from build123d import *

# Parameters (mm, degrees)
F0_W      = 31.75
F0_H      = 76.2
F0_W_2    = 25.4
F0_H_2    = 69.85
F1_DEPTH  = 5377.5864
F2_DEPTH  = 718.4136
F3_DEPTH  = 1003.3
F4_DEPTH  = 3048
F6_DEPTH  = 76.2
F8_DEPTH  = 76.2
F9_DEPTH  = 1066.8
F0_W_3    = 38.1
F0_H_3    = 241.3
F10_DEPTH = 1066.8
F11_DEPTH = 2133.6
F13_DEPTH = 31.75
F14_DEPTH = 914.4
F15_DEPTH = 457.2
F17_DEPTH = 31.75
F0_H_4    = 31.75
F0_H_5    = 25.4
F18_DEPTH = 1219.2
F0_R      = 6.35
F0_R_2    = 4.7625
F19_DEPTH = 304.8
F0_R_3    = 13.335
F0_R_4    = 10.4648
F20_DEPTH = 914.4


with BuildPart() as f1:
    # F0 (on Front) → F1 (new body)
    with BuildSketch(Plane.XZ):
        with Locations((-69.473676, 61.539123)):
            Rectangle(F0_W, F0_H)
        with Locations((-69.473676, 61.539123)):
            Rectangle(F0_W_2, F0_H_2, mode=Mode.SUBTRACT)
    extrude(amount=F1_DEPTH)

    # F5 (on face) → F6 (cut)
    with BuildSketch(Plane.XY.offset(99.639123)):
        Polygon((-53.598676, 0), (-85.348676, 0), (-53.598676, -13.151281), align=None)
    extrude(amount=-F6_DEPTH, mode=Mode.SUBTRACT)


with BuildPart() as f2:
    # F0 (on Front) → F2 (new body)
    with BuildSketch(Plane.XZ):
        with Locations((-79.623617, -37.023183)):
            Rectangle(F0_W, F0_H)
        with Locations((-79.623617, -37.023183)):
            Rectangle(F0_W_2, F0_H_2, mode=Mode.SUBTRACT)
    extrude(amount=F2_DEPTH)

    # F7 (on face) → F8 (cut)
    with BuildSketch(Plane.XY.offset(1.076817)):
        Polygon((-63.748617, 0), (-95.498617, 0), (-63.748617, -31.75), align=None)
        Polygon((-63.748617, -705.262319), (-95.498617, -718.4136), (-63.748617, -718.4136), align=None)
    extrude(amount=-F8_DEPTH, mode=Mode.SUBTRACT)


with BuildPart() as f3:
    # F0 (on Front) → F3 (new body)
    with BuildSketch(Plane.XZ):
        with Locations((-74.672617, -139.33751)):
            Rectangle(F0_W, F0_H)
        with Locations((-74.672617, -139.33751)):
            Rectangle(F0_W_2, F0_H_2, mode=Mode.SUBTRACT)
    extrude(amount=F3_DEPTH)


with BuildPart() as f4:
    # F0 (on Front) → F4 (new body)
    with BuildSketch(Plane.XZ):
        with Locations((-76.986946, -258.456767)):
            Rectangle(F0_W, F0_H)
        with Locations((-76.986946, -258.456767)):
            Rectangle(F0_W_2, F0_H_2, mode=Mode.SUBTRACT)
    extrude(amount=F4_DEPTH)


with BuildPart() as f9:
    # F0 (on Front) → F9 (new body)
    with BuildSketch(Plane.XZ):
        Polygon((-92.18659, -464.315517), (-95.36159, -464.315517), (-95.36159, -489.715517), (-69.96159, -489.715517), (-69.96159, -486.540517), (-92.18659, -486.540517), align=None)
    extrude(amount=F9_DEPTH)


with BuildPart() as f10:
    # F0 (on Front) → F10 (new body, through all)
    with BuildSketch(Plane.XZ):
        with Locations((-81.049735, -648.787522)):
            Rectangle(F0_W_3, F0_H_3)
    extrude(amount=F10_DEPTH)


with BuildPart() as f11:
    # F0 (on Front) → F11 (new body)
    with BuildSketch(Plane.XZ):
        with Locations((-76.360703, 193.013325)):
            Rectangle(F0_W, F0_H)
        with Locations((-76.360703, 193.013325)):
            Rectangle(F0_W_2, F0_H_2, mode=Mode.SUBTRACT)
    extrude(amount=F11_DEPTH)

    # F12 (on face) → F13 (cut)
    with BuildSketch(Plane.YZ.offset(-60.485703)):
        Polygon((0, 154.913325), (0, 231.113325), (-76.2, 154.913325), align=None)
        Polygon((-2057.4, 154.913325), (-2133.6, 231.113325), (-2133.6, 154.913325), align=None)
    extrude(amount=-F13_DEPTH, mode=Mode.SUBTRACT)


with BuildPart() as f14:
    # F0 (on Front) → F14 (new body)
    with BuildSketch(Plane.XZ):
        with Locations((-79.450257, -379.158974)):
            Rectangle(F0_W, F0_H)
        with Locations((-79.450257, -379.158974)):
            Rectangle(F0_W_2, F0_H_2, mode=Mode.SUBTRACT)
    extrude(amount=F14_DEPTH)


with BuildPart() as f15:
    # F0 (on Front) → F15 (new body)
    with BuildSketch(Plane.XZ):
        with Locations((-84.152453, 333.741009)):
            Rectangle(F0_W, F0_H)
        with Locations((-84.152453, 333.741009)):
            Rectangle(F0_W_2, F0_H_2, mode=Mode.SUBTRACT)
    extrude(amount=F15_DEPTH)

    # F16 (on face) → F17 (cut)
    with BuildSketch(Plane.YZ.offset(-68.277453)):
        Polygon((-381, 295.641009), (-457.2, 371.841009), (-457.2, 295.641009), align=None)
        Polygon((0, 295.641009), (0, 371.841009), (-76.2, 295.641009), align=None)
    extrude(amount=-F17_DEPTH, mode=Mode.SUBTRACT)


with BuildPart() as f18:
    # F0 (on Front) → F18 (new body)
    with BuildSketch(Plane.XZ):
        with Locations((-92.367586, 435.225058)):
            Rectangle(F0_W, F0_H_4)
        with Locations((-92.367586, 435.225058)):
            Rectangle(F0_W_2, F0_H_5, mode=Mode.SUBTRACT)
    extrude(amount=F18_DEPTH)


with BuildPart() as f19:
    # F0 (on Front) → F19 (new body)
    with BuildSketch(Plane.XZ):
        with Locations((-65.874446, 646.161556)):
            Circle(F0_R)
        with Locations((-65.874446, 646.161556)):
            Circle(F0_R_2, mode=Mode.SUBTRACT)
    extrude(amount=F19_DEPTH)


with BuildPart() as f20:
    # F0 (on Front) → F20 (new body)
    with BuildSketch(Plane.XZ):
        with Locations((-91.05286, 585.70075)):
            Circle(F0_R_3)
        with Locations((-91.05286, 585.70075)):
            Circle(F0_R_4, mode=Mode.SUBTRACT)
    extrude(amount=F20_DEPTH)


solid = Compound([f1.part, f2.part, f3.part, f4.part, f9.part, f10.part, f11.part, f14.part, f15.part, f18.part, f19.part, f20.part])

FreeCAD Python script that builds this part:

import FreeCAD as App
import Part
import Sketcher
from FreeCAD import Vector
Q = App.Units.Quantity

doc = App.newDocument("Part")
body = doc.addObject("PartDesign::Body", "Body")

# Sketch on XZ plane
sketch1 = body.newObject("Sketcher::SketchObject", "Sketch")
sketch1.AttachmentSupport = (doc.getObject("XZ_Plane"), [""])
sketch1.MapMode = "FlatFace"
sketch1.addGeometry(Part.LineSegment(Vector(-85, 100, 0), Vector(-85, 23, 0)), False)
sketch1.addGeometry(Part.LineSegment(Vector(-85, 23, 0), Vector(-54, 23, 0)), False)
sketch1.addGeometry(Part.LineSegment(Vector(-54, 23, 0), Vector(-54, 100, 0)), False)
sketch1.addGeometry(Part.LineSegment(Vector(-54, 100, 0), Vector(-85, 100, 0)), False)
sketch1.addGeometry(Part.LineSegment(Vector(-57, 27, 0), Vector(-82, 27, 0)), False)
sketch1.addGeometry(Part.LineSegment(Vector(-82, 27, 0), Vector(-82, 96, 0)), False)
sketch1.addGeometry(Part.LineSegment(Vector(-82, 96, 0), Vector(-57, 96, 0)), False)
sketch1.addGeometry(Part.LineSegment(Vector(-57, 96, 0), Vector(-57, 27, 0)), False)
sketch1.addConstraint(Sketcher.Constraint("Coincident", 0, 2, 1, 1))
sketch1.addConstraint(Sketcher.Constraint("Coincident", 1, 2, 2, 1))
sketch1.addConstraint(Sketcher.Constraint("Coincident", 2, 2, 3, 1))
sketch1.addConstraint(Sketcher.Constraint("Coincident", 3, 2, 0, 1))
sketch1.addConstraint(Sketcher.Constraint("Coincident", 4, 2, 5, 1))
sketch1.addConstraint(Sketcher.Constraint("Coincident", 5, 2, 6, 1))
sketch1.addConstraint(Sketcher.Constraint("Coincident", 6, 2, 7, 1))
sketch1.addConstraint(Sketcher.Constraint("Coincident", 7, 2, 4, 1))
sketch1.addConstraint(Sketcher.Constraint("Vertical", 0))
sketch1.addConstraint(Sketcher.Constraint("Horizontal", 1))
sketch1.addConstraint(Sketcher.Constraint("Vertical", 2))
sketch1.addConstraint(Sketcher.Constraint("Horizontal", 3))
sketch1.addConstraint(Sketcher.Constraint("Horizontal", 4))
sketch1.addConstraint(Sketcher.Constraint("Vertical", 5))
sketch1.addConstraint(Sketcher.Constraint("Horizontal", 6))
sketch1.addConstraint(Sketcher.Constraint("Vertical", 7))
sketch1.addConstraint(Sketcher.Constraint("DistanceX", 4, 2, 4, 1, Q("1 in")))
sketch1.addConstraint(Sketcher.Constraint("DistanceY", 0, 2, 0, 1, Q("3 in")))
sketch1.addConstraint(Sketcher.Constraint("DistanceX", 1, 1, 1, 2, Q("1.25 in")))
sketch1.addConstraint(Sketcher.Constraint("DistanceY", 5, 1, 5, 2, Q("2.75 in")))
sketch1.addConstraint(Sketcher.Constraint("DistanceX", 0, 2, 4, 2, Q("0.125 in")))
sketch1.addConstraint(Sketcher.Constraint("DistanceY", 0, 2, 4, 2, Q("0.125 in")))
sketch1.addConstraint(Sketcher.Constraint("DistanceY", -1, 1, 0, 2, Q("0.9228001 in")))
sketch1.addConstraint(Sketcher.Constraint("DistanceX", 0, 2, -1, 1, 85.348676))
pad1 = body.newObject("PartDesign::Pad", "Pad")
pad1.Profile = sketch1
pad1.Length = Q("211.716 in")

# Sketch on XY plane
sketch2 = body.newObject("Sketcher::SketchObject", "Sketch001")
sketch2.AttachmentSupport = (doc.getObject("XY_Plane"), [""])
sketch2.MapMode = "FlatFace"
sketch2.AttachmentOffset = App.Placement(Vector(0, 0, 3.9228001 * 25.4), App.Rotation())
sketch2.addGeometry(Part.LineSegment(Vector(-54, 0, 0), Vector(-85, 0, 0)), False)
sketch2.addGeometry(Part.LineSegment(Vector(-85, 0, 0), Vector(-54, -13, 0)), False)
sketch2.addGeometry(Part.LineSegment(Vector(-54, -13, 0), Vector(-54, 0, 0)), False)
sketch2.addConstraint(Sketcher.Constraint("Coincident", 0, 2, 1, 1))
sketch2.addConstraint(Sketcher.Constraint("Coincident", 1, 2, 2, 1))
sketch2.addConstraint(Sketcher.Constraint("Coincident", 2, 2, 0, 1))
sketch2.addConstraint(Sketcher.Constraint("Horizontal", 0))
sketch2.addConstraint(Sketcher.Constraint("Vertical", 2))
sketch2.addConstraint(Sketcher.Constraint("PointOnObject", 0, 2, -1))
sketch2.addConstraint(Sketcher.Constraint("DistanceX", 0, 2, 0, 1, Q("1.25 in")))
sketch2.addConstraint(Sketcher.Constraint("Angle", 1, Q("-22.500001 deg")))
sketch2.addConstraint(Sketcher.Constraint("DistanceX", 0, 2, -1, 1, 85.348676))
pocket1 = body.newObject("PartDesign::Pocket", "Pocket")
pocket1.Profile = sketch2
pocket1.Length = Q("3 in")
body2 = doc.addObject("PartDesign::Body", "Body001")

# Sketch on XZ plane
sketch3 = body2.newObject("Sketcher::SketchObject", "Sketch002")
sketch3.AttachmentSupport = (doc.getObject("XZ_Plane001"), [""])
sketch3.MapMode = "FlatFace"
sketch3.addGeometry(Part.LineSegment(Vector(-95, 1, 0), Vector(-95, -75, 0)), False)
sketch3.addGeometry(Part.LineSegment(Vector(-95, -75, 0), Vector(-64, -75, 0)), False)
sketch3.addGeometry(Part.LineSegment(Vector(-64, -75, 0), Vector(-64, 1, 0)), False)
sketch3.addGeometry(Part.LineSegment(Vector(-64, 1, 0), Vector(-95, 1, 0)), False)
sketch3.addGeometry(Part.LineSegment(Vector(-67, -72, 0), Vector(-92, -72, 0)), False)
sketch3.addGeometry(Part.LineSegment(Vector(-92, -72, 0), Vector(-92, -2, 0)), False)
sketch3.addGeometry(Part.LineSegment(Vector(-92, -2, 0), Vector(-67, -2, 0)), False)
sketch3.addGeometry(Part.LineSegment(Vector(-67, -2, 0), Vector(-67, -72, 0)), False)
sketch3.addConstraint(Sketcher.Constraint("Coincident", 0, 2, 1, 1))
sketch3.addConstraint(Sketcher.Constraint("Coincident", 1, 2, 2, 1))
sketch3.addConstraint(Sketcher.Constraint("Coincident", 2, 2, 3, 1))
sketch3.addConstraint(Sketcher.Constraint("Coincident", 3, 2, 0, 1))
sketch3.addConstraint(Sketcher.Constraint("Coincident", 4, 2, 5, 1))
sketch3.addConstraint(Sketcher.Constraint("Coincident", 5, 2, 6, 1))
sketch3.addConstraint(Sketcher.Constraint("Coincident", 6, 2, 7, 1))
sketch3.addConstraint(Sketcher.Constraint("Coincident", 7, 2, 4, 1))
sketch3.addConstraint(Sketcher.Constraint("Vertical", 0))
sketch3.addConstraint(Sketcher.Constraint("Horizontal", 1))
sketch3.addConstraint(Sketcher.Constraint("Vertical", 2))
sketch3.addConstraint(Sketcher.Constraint("Horizontal", 3))
sketch3.addConstraint(Sketcher.Constraint("Horizontal", 4))
sketch3.addConstraint(Sketcher.Constraint("Vertical", 5))
sketch3.addConstraint(Sketcher.Constraint("Horizontal", 6))
sketch3.addConstraint(Sketcher.Constraint("Vertical", 7))
sketch3.addConstraint(Sketcher.Constraint("DistanceX", 4, 2, 4, 1, Q("1 in")))
sketch3.addConstraint(Sketcher.Constraint("DistanceY", 0, 2, 0, 1, Q("3 in")))
sketch3.addConstraint(Sketcher.Constraint("DistanceX", 1, 1, 1, 2, Q("1.25 in")))
sketch3.addConstraint(Sketcher.Constraint("DistanceY", 5, 1, 5, 2, Q("2.75 in")))
sketch3.addConstraint(Sketcher.Constraint("DistanceX", 0, 2, 4, 2, Q("0.125 in")))
sketch3.addConstraint(Sketcher.Constraint("DistanceY", 0, 2, 4, 2, Q("0.125 in")))
sketch3.addConstraint(Sketcher.Constraint("DistanceX", 0, 2, -1, 1, 95.498617))
sketch3.addConstraint(Sketcher.Constraint("DistanceY", 0, 2, -1, 1, 75.123183))
pad2 = body2.newObject("PartDesign::Pad", "Pad001")
pad2.Profile = sketch3
pad2.Length = Q("28.284 in")

# Sketch on XY plane
sketch4 = body2.newObject("Sketcher::SketchObject", "Sketch003")
sketch4.AttachmentSupport = (doc.getObject("XY_Plane001"), [""])
sketch4.MapMode = "FlatFace"
sketch4.AttachmentOffset = App.Placement(Vector(0, 0, 1.076817), App.Rotation())
sketch4.addGeometry(Part.LineSegment(Vector(-64, 0, 0), Vector(-95, 0, 0)), False)
sketch4.addGeometry(Part.LineSegment(Vector(-95, 0, 0), Vector(-64, -32, 0)), False)
sketch4.addGeometry(Part.LineSegment(Vector(-64, -32, 0), Vector(-64, 0, 0)), False)
sketch4.addGeometry(Part.LineSegment(Vector(-64, -705, 0), Vector(-95, -718, 0)), False)
sketch4.addGeometry(Part.LineSegment(Vector(-95, -718, 0), Vector(-64, -718, 0)), False)
sketch4.addGeometry(Part.LineSegment(Vector(-64, -718, 0), Vector(-64, -705, 0)), False)
sketch4.addConstraint(Sketcher.Constraint("Coincident", 0, 2, 1, 1))
sketch4.addConstraint(Sketcher.Constraint("Coincident", 1, 2, 2, 1))
sketch4.addConstraint(Sketcher.Constraint("Coincident", 2, 2, 0, 1))
sketch4.addConstraint(Sketcher.Constraint("Coincident", 3, 2, 4, 1))
sketch4.addConstraint(Sketcher.Constraint("Coincident", 4, 2, 5, 1))
sketch4.addConstraint(Sketcher.Constraint("Coincident", 5, 2, 3, 1))
sketch4.addConstraint(Sketcher.Constraint("Horizontal", 0))
sketch4.addConstraint(Sketcher.Constraint("Vertical", 2))
sketch4.addConstraint(Sketcher.Constraint("Horizontal", 4))
sketch4.addConstraint(Sketcher.Constraint("Vertical", 5))
sketch4.addConstraint(Sketcher.Constraint("PointOnObject", 0, 2, -1))
sketch4.addConstraint(Sketcher.Constraint("Vertical", 0, 2, 3, 2))
sketch4.addConstraint(Sketcher.Constraint("Vertical", 2, 2, 4, 2))
sketch4.addConstraint(Sketcher.Constraint("Equal", 4, 2))
sketch4.addConstraint(Sketcher.Constraint("DistanceX", 0, 2, 0, 1, Q("1.25 in")))
sketch4.addConstraint(Sketcher.Constraint("Angle", 3, Q("-157.499999 deg")))
sketch4.addConstraint(Sketcher.Constraint("DistanceY", 3, 2, -1, 1, Q("28.284 in")))
sketch4.addConstraint(Sketcher.Constraint("DistanceX", 0, 2, -1, 1, 95.498617))
pocket2 = body2.newObject("PartDesign::Pocket", "Pocket001")
pocket2.Profile = sketch4
pocket2.Length = Q("3 in")
body3 = doc.addObject("PartDesign::Body", "Body002")

# Sketch on XZ plane
sketch5 = body3.newObject("Sketcher::SketchObject", "Sketch004")
sketch5.AttachmentSupport = (doc.getObject("XZ_Plane002"), [""])
sketch5.MapMode = "FlatFace"
sketch5.addGeometry(Part.LineSegment(Vector(-91, -101, 0), Vector(-91, -177, 0)), False)
sketch5.addGeometry(Part.LineSegment(Vector(-91, -177, 0), Vector(-59, -177, 0)), False)
sketch5.addGeometry(Part.LineSegment(Vector(-59, -177, 0), Vector(-59, -101, 0)), False)
sketch5.addGeometry(Part.LineSegment(Vector(-59, -101, 0), Vector(-91, -101, 0)), False)
sketch5.addGeometry(Part.LineSegment(Vector(-62, -174, 0), Vector(-87, -174, 0)), False)
sketch5.addGeometry(Part.LineSegment(Vector(-87, -174, 0), Vector(-87, -104, 0)), False)
sketch5.addGeometry(Part.LineSegment(Vector(-87, -104, 0), Vector(-62, -104, 0)), False)
sketch5.addGeometry(Part.LineSegment(Vector(-62, -104, 0), Vector(-62, -174, 0)), False)
sketch5.addConstraint(Sketcher.Constraint("Coincident", 0, 2, 1, 1))
sketch5.addConstraint(Sketcher.Constraint("Coincident", 1, 2, 2, 1))
sketch5.addConstraint(Sketcher.Constraint("Coincident", 2, 2, 3, 1))
sketch5.addConstraint(Sketcher.Constraint("Coincident", 3, 2, 0, 1))
sketch5.addConstraint(Sketcher.Constraint("Coincident", 4, 2, 5, 1))
sketch5.addConstraint(Sketcher.Constraint("Coincident", 5, 2, 6, 1))
sketch5.addConstraint(Sketcher.Constraint("Coincident", 6, 2, 7, 1))
sketch5.addConstraint(Sketcher.Constraint("Coincident", 7, 2, 4, 1))
sketch5.addConstraint(Sketcher.Constraint("Vertical", 0))
sketch5.addConstraint(Sketcher.Constraint("Horizontal", 1))
sketch5.addConstraint(Sketcher.Constraint("Vertical", 2))
sketch5.addConstraint(Sketcher.Constraint("Horizontal", 3))
sketch5.addConstraint(Sketcher.Constraint("Horizontal", 4))
sketch5.addConstraint(Sketcher.Constraint("Vertical", 5))
sketch5.addConstraint(Sketcher.Constraint("Horizontal", 6))
sketch5.addConstraint(Sketcher.Constraint("Vertical", 7))
sketch5.addConstraint(Sketcher.Constraint("DistanceX", 4, 2, 4, 1, Q("1 in")))
sketch5.addConstraint(Sketcher.Constraint("DistanceY", 0, 2, 0, 1, Q("3 in")))
sketch5.addConstraint(Sketcher.Constraint("DistanceX", 1, 1, 1, 2, Q("1.25 in")))
sketch5.addConstraint(Sketcher.Constraint("DistanceY", 5, 1, 5, 2, Q("2.75 in")))
sketch5.addConstraint(Sketcher.Constraint("DistanceX", 0, 2, 4, 2, Q("0.125 in")))
sketch5.addConstraint(Sketcher.Constraint("DistanceY", 0, 2, 4, 2, Q("0.125 in")))
sketch5.addConstraint(Sketcher.Constraint("DistanceY", 0, 2, -1, 1, 177.43751))
sketch5.addConstraint(Sketcher.Constraint("DistanceX", 0, 2, -1, 1, 90.547617))
pad3 = body3.newObject("PartDesign::Pad", "Pad002")
pad3.Profile = sketch5
pad3.Length = Q("39.5 in")
body4 = doc.addObject("PartDesign::Body", "Body003")

# Sketch on XZ plane
sketch6 = body4.newObject("Sketcher::SketchObject", "Sketch005")
sketch6.AttachmentSupport = (doc.getObject("XZ_Plane003"), [""])
sketch6.MapMode = "FlatFace"
sketch6.addGeometry(Part.LineSegment(Vector(-93, -220, 0), Vector(-93, -297, 0)), False)
sketch6.addGeometry(Part.LineSegment(Vector(-93, -297, 0), Vector(-61, -297, 0)), False)
sketch6.addGeometry(Part.LineSegment(Vector(-61, -297, 0), Vector(-61, -220, 0)), False)
sketch6.addGeometry(Part.LineSegment(Vector(-61, -220, 0), Vector(-93, -220, 0)), False)
sketch6.addGeometry(Part.LineSegment(Vector(-64, -293, 0), Vector(-90, -293, 0)), False)
sketch6.addGeometry(Part.LineSegment(Vector(-90, -293, 0), Vector(-90, -224, 0)), False)
sketch6.addGeometry(Part.LineSegment(Vector(-90, -224, 0), Vector(-64, -224, 0)), False)
sketch6.addGeometry(Part.LineSegment(Vector(-64, -224, 0), Vector(-64, -293, 0)), False)
sketch6.addConstraint(Sketcher.Constraint("Coincident", 0, 2, 1, 1))
sketch6.addConstraint(Sketcher.Constraint("Coincident", 1, 2, 2, 1))
sketch6.addConstraint(Sketcher.Constraint("Coincident", 2, 2, 3, 1))
sketch6.addConstraint(Sketcher.Constraint("Coincident", 3, 2, 0, 1))
sketch6.addConstraint(Sketcher.Constraint("Coincident", 4, 2, 5, 1))
sketch6.addConstraint(Sketcher.Constraint("Coincident", 5, 2, 6, 1))
sketch6.addConstraint(Sketcher.Constraint("Coincident", 6, 2, 7, 1))
sketch6.addConstraint(Sketcher.Constraint("Coincident", 7, 2, 4, 1))
sketch6.addConstraint(Sketcher.Constraint("Vertical", 0))
sketch6.addConstraint(Sketcher.Constraint("Horizontal", 1))
sketch6.addConstraint(Sketcher.Constraint("Vertical", 2))
sketch6.addConstraint(Sketcher.Constraint("Horizontal", 3))
sketch6.addConstraint(Sketcher.Constraint("Horizontal", 4))
sketch6.addConstraint(Sketcher.Constraint("Vertical", 5))
sketch6.addConstraint(Sketcher.Constraint("Horizontal", 6))
sketch6.addConstraint(Sketcher.Constraint("Vertical", 7))
sketch6.addConstraint(Sketcher.Constraint("DistanceX", 4, 2, 4, 1, Q("1 in")))
sketch6.addConstraint(Sketcher.Constraint("DistanceY", 0, 2, 0, 1, Q("3 in")))
sketch6.addConstraint(Sketcher.Constraint("DistanceX", 1, 1, 1, 2, Q("1.25 in")))
sketch6.addConstraint(Sketcher.Constraint("DistanceY", 5, 1, 5, 2, Q("2.75 in")))
sketch6.addConstraint(Sketcher.Constraint("DistanceX", 0, 2, 4, 2, Q("0.125 in")))
sketch6.addConstraint(Sketcher.Constraint("DistanceY", 0, 2, 4, 2, Q("0.125 in")))
sketch6.addConstraint(Sketcher.Constraint("DistanceX", 0, 2, -1, 1, 92.861946))
sketch6.addConstraint(Sketcher.Constraint("DistanceY", 0, 2, -1, 1, 296.556767))
pad4 = body4.newObject("PartDesign::Pad", "Pad003")
pad4.Profile = sketch6
pad4.Length = Q("120 in")
body5 = doc.addObject("PartDesign::Body", "Body004")

# Sketch on XZ plane
sketch7 = body5.newObject("Sketcher::SketchObject", "Sketch006")
sketch7.AttachmentSupport = (doc.getObject("XZ_Plane004"), [""])
sketch7.MapMode = "FlatFace"
sketch7.addGeometry(Part.LineSegment(Vector(-92.2, -464.3, 0), Vector(-95.4, -464.3, 0)), False)
sketch7.addGeometry(Part.LineSegment(Vector(-95.4, -464.3, 0), Vector(-95.4, -489.7, 0)), False)
sketch7.addGeometry(Part.LineSegment(Vector(-95.4, -489.7, 0), Vector(-70, -489.7, 0)), False)
sketch7.addGeometry(Part.LineSegment(Vector(-70, -489.7, 0), Vector(-70, -486.5, 0)), False)
sketch7.addGeometry(Part.LineSegment(Vector(-70, -486.5, 0), Vector(-92.2, -486.5, 0)), False)
sketch7.addGeometry(Part.LineSegment(Vector(-92.2, -486.5, 0), Vector(-92.2, -464.3, 0)), False)
sketch7.addConstraint(Sketcher.Constraint("Coincident", 0, 2, 1, 1))
sketch7.addConstraint(Sketcher.Constraint("Coincident", 1, 2, 2, 1))
sketch7.addConstraint(Sketcher.Constraint("Coincident", 2, 2, 3, 1))
sketch7.addConstraint(Sketcher.Constraint("Coincident", 3, 2, 4, 1))
sketch7.addConstraint(Sketcher.Constraint("Coincident", 4, 2, 5, 1))
sketch7.addConstraint(Sketcher.Constraint("Coincident", 5, 2, 0, 1))
sketch7.addConstraint(Sketcher.Constraint("Horizontal", 0))
sketch7.addConstraint(Sketcher.Constraint("Vertical", 1))
sketch7.addConstraint(Sketcher.Constraint("Horizontal", 2))
sketch7.addConstraint(Sketcher.Constraint("Vertical", 3))
sketch7.addConstraint(Sketcher.Constraint("Horizontal", 4))
sketch7.addConstraint(Sketcher.Constraint("Vertical", 5))
sketch7.addConstraint(Sketcher.Constraint("Equal", 2, 1))
sketch7.addConstraint(Sketcher.Constraint("Equal", 0, 3))
sketch7.addConstraint(Sketcher.Constraint("DistanceX", 2, 1, 2, 2, Q("1 in")))
sketch7.addConstraint(Sketcher.Constraint("DistanceX", 0, 2, 0, 1, Q("0.125 in")))
sketch7.addConstraint(Sketcher.Constraint("DistanceX", 0, 2, -1, 1, 95.36159))
sketch7.addConstraint(Sketcher.Constraint("DistanceY", 0, 2, -1, 1, 464.315517))
pad5 = body5.newObject("PartDesign::Pad", "Pad004")
pad5.Profile = sketch7
pad5.Length = Q("42 in")
body6 = doc.addObject("PartDesign::Body", "Body005")

# Sketch on XZ plane
sketch8 = body6.newObject("Sketcher::SketchObject", "Sketch007")
sketch8.AttachmentSupport = (doc.getObject("XZ_Plane005"), [""])
sketch8.MapMode = "FlatFace"
sketch8.addGeometry(Part.LineSegment(Vector(-100, -528, 0), Vector(-100, -769, 0)), False)
sketch8.addGeometry(Part.LineSegment(Vector(-100, -769, 0), Vector(-62, -769, 0)), False)
sketch8.addGeometry(Part.LineSegment(Vector(-62, -769, 0), Vector(-62, -528, 0)), False)
sketch8.addGeometry(Part.LineSegment(Vector(-62, -528, 0), Vector(-100, -528, 0)), False)
sketch8.addConstraint(Sketcher.Constraint("Coincident", 0, 2, 1, 1))
sketch8.addConstraint(Sketcher.Constraint("Coincident", 1, 2, 2, 1))
sketch8.addConstraint(Sketcher.Constraint("Coincident", 2, 2, 3, 1))
sketch8.addConstraint(Sketcher.Constraint("Coincident", 3, 2, 0, 1))
sketch8.addConstraint(Sketcher.Constraint("Vertical", 0))
sketch8.addConstraint(Sketcher.Constraint("Horizontal", 1))
sketch8.addConstraint(Sketcher.Constraint("Vertical", 2))
sketch8.addConstraint(Sketcher.Constraint("Horizontal", 3))
sketch8.addConstraint(Sketcher.Constraint("DistanceX", 1, 1, 1, 2, Q("1.5 in")))
sketch8.addConstraint(Sketcher.Constraint("DistanceY", 0, 2, 0, 1, Q("9.5 in")))
sketch8.addConstraint(Sketcher.Constraint("DistanceY", 0, 2, -1, 1, 769.437522))
sketch8.addConstraint(Sketcher.Constraint("DistanceX", 0, 2, -1, 1, 100.099735))
pad6 = body6.newObject("PartDesign::Pad", "Pad005")
pad6.Profile = sketch8
pad6.Length = Q("42 in")
body7 = doc.addObject("PartDesign::Body", "Body006")

# Sketch on XZ plane
sketch9 = body7.newObject("Sketcher::SketchObject", "Sketch008")
sketch9.AttachmentSupport = (doc.getObject("XZ_Plane006"), [""])
sketch9.MapMode = "FlatFace"
sketch9.addGeometry(Part.LineSegment(Vector(-92, 231, 0), Vector(-92, 155, 0)), False)
sketch9.addGeometry(Part.LineSegment(Vector(-92, 155, 0), Vector(-60, 155, 0)), False)
sketch9.addGeometry(Part.LineSegment(Vector(-60, 155, 0), Vector(-60, 231, 0)), False)
sketch9.addGeometry(Part.LineSegment(Vector(-60, 231, 0), Vector(-92, 231, 0)), False)
sketch9.addGeometry(Part.LineSegment(Vector(-64, 158, 0), Vector(-89, 158, 0)), False)
sketch9.addGeometry(Part.LineSegment(Vector(-89, 158, 0), Vector(-89, 228, 0)), False)
sketch9.addGeometry(Part.LineSegment(Vector(-89, 228, 0), Vector(-64, 228, 0)), False)
sketch9.addGeometry(Part.LineSegment(Vector(-64, 228, 0), Vector(-64, 158, 0)), False)
sketch9.addConstraint(Sketcher.Constraint("Coincident", 0, 2, 1, 1))
sketch9.addConstraint(Sketcher.Constraint("Coincident", 1, 2, 2, 1))
sketch9.addConstraint(Sketcher.Constraint("Coincident", 2, 2, 3, 1))
sketch9.addConstraint(Sketcher.Constraint("Coincident", 3, 2, 0, 1))
sketch9.addConstraint(Sketcher.Constraint("Coincident", 4, 2, 5, 1))
sketch9.addConstraint(Sketcher.Constraint("Coincident", 5, 2, 6, 1))
sketch9.addConstraint(Sketcher.Constraint("Coincident", 6, 2, 7, 1))
sketch9.addConstraint(Sketcher.Constraint("Coincident", 7, 2, 4, 1))
sketch9.addConstraint(Sketcher.Constraint("Vertical", 0))
sketch9.addConstraint(Sketcher.Constraint("Horizontal", 1))
sketch9.addConstraint(Sketcher.Constraint("Vertical", 2))
sketch9.addConstraint(Sketcher.Constraint("Horizontal", 3))
sketch9.addConstraint(Sketcher.Constraint("Horizontal", 4))
sketch9.addConstraint(Sketcher.Constraint("Vertical", 5))
sketch9.addConstraint(Sketcher.Constraint("Horizontal", 6))
sketch9.addConstraint(Sketcher.Constraint("Vertical", 7))
sketch9.addConstraint(Sketcher.Constraint("DistanceX", 4, 2, 4, 1, Q("1 in")))
sketch9.addConstraint(Sketcher.Constraint("DistanceY", 0, 2, 0, 1, Q("3 in")))
sketch9.addConstraint(Sketcher.Constraint("DistanceX", 1, 1, 1, 2, Q("1.25 in")))
sketch9.addConstraint(Sketcher.Constraint("DistanceY", 5, 1, 5, 2, Q("2.75 in")))
sketch9.addConstraint(Sketcher.Constraint("DistanceX", 0, 2, 4, 2, Q("0.125 in")))
sketch9.addConstraint(Sketcher.Constraint("DistanceY", 0, 2, 4, 2, Q("0.125 in")))
sketch9.addConstraint(Sketcher.Constraint("DistanceX", 0, 2, -1, 1, 92.235703))
sketch9.addConstraint(Sketcher.Constraint("DistanceY", -1, 1, 0, 2, 154.913325))
pad7 = body7.newObject("PartDesign::Pad", "Pad006")
pad7.Profile = sketch9
pad7.Length = Q("84 in")

# Sketch on YZ plane
sketch10 = body7.newObject("Sketcher::SketchObject", "Sketch009")
sketch10.AttachmentSupport = (doc.getObject("YZ_Plane006"), [""])
sketch10.MapMode = "FlatFace"
sketch10.AttachmentOffset = App.Placement(Vector(0, 0, -60.485703), App.Rotation())
sketch10.addGeometry(Part.LineSegment(Vector(0, 155, 0), Vector(0, 231, 0)), False)
sketch10.addGeometry(Part.LineSegment(Vector(0, 231, 0), Vector(-76, 155, 0)), False)
sketch10.addGeometry(Part.LineSegment(Vector(-76, 155, 0), Vector(0, 155, 0)), False)
sketch10.addGeometry(Part.LineSegment(Vector(-2057, 155, 0), Vector(-2134, 231, 0)), False)
sketch10.addGeometry(Part.LineSegment(Vector(-2134, 231, 0), Vector(-2134, 155, 0)), False)
sketch10.addGeometry(Part.LineSegment(Vector(-2134, 155, 0), Vector(-2057, 155, 0)), False)
sketch10.addConstraint(Sketcher.Constraint("Coincident", 0, 2, 1, 1))
sketch10.addConstraint(Sketcher.Constraint("Coincident", 1, 2, 2, 1))
sketch10.addConstraint(Sketcher.Constraint("Coincident", 2, 2, 0, 1))
sketch10.addConstraint(Sketcher.Constraint("Coincident", 3, 2, 4, 1))
sketch10.addConstraint(Sketcher.Constraint("Coincident", 4, 2, 5, 1))
sketch10.addConstraint(Sketcher.Constraint("Coincident", 5, 2, 3, 1))
sketch10.addConstraint(Sketcher.Constraint("Vertical", 0))
sketch10.addConstraint(Sketcher.Constraint("Horizontal", 2))
sketch10.addConstraint(Sketcher.Constraint("Vertical", 4))
sketch10.addConstraint(Sketcher.Constraint("Horizontal", 5))
sketch10.addConstraint(Sketcher.Constraint("PointOnObject", 0, 2, -2))
sketch10.addConstraint(Sketcher.Constraint("Perpendicular", 1, 3))
sketch10.addConstraint(Sketcher.Constraint("Horizontal", 0, 2, 3, 2))
sketch10.addConstraint(Sketcher.Constraint("Horizontal", 2, 2, 4, 2))
sketch10.addConstraint(Sketcher.Constraint("Equal", 2, 5))
sketch10.addConstraint(Sketcher.Constraint("DistanceX", 2, 1, 2, 2, Q("3 in")))
sketch10.addConstraint(Sketcher.Constraint("DistanceX", 3, 2, -1, 1, Q("84 in")))
sketch10.addConstraint(Sketcher.Constraint("DistanceY", -1, 1, 0, 2, 231.113325))
pocket3 = body7.newObject("PartDesign::Pocket", "Pocket002")
pocket3.Profile = sketch10
pocket3.Length = Q("1.25 in")
body8 = doc.addObject("PartDesign::Body", "Body007")

# Sketch on XZ plane
sketch11 = body8.newObject("Sketcher::SketchObject", "Sketch010")
sketch11.AttachmentSupport = (doc.getObject("XZ_Plane007"), [""])
sketch11.MapMode = "FlatFace"
sketch11.addGeometry(Part.LineSegment(Vector(-95, -341, 0), Vector(-95, -417, 0)), False)
sketch11.addGeometry(Part.LineSegment(Vector(-95, -417, 0), Vector(-64, -417, 0)), False)
sketch11.addGeometry(Part.LineSegment(Vector(-64, -417, 0), Vector(-64, -341, 0)), False)
sketch11.addGeometry(Part.LineSegment(Vector(-64, -341, 0), Vector(-95, -341, 0)), False)
sketch11.addGeometry(Part.LineSegment(Vector(-67, -414, 0), Vector(-92, -414, 0)), False)
sketch11.addGeometry(Part.LineSegment(Vector(-92, -414, 0), Vector(-92, -344, 0)), False)
sketch11.addGeometry(Part.LineSegment(Vector(-92, -344, 0), Vector(-67, -344, 0)), False)
sketch11.addGeometry(Part.LineSegment(Vector(-67, -344, 0), Vector(-67, -414, 0)), False)
sketch11.addConstraint(Sketcher.Constraint("Coincident", 0, 2, 1, 1))
sketch11.addConstraint(Sketcher.Constraint("Coincident", 1, 2, 2, 1))
sketch11.addConstraint(Sketcher.Constraint("Coincident", 2, 2, 3, 1))
sketch11.addConstraint(Sketcher.Constraint("Coincident", 3, 2, 0, 1))
sketch11.addConstraint(Sketcher.Constraint("Coincident", 4, 2, 5, 1))
sketch11.addConstraint(Sketcher.Constraint("Coincident", 5, 2, 6, 1))
sketch11.addConstraint(Sketcher.Constraint("Coincident", 6, 2, 7, 1))
sketch11.addConstraint(Sketcher.Constraint("Coincident", 7, 2, 4, 1))
sketch11.addConstraint(Sketcher.Constraint("Vertical", 0))
sketch11.addConstraint(Sketcher.Constraint("Horizontal", 1))
sketch11.addConstraint(Sketcher.Constraint("Vertical", 2))
sketch11.addConstraint(Sketcher.Constraint("Horizontal", 3))
sketch11.addConstraint(Sketcher.Constraint("Horizontal", 4))
sketch11.addConstraint(Sketcher.Constraint("Vertical", 5))
sketch11.addConstraint(Sketcher.Constraint("Horizontal", 6))
sketch11.addConstraint(Sketcher.Constraint("Vertical", 7))
sketch11.addConstraint(Sketcher.Constraint("DistanceX", 4, 2, 4, 1, Q("1 in")))
sketch11.addConstraint(Sketcher.Constraint("DistanceY", 0, 2, 0, 1, Q("3 in")))
sketch11.addConstraint(Sketcher.Constraint("DistanceX", 1, 1, 1, 2, Q("1.25 in")))
sketch11.addConstraint(Sketcher.Constraint("DistanceY", 5, 1, 5, 2, Q("2.75 in")))
sketch11.addConstraint(Sketcher.Constraint("DistanceX", 0, 2, 4, 2, Q("0.125 in")))
sketch11.addConstraint(Sketcher.Constraint("DistanceY", 0, 2, 4, 2, Q("0.125 in")))
sketch11.addConstraint(Sketcher.Constraint("DistanceX", 0, 2, -1, 1, 95.325257))
sketch11.addConstraint(Sketcher.Constraint("DistanceY", 0, 2, -1, 1, 417.258974))
pad8 = body8.newObject("PartDesign::Pad", "Pad007")
pad8.Profile = sketch11
pad8.Length = Q("36 in")
body9 = doc.addObject("PartDesign::Body", "Body008")

# Sketch on XZ plane
sketch12 = body9.newObject("Sketcher::SketchObject", "Sketch011")
sketch12.AttachmentSupport = (doc.getObject("XZ_Plane008"), [""])
sketch12.MapMode = "FlatFace"
sketch12.addGeometry(Part.LineSegment(Vector(-100, 372, 0), Vector(-100, 296, 0)), False)
sketch12.addGeometry(Part.LineSegment(Vector(-100, 296, 0), Vector(-68, 296, 0)), False)
sketch12.addGeometry(Part.LineSegment(Vector(-68, 296, 0), Vector(-68, 372, 0)), False)
sketch12.addGeometry(Part.LineSegment(Vector(-68, 372, 0), Vector(-100, 372, 0)), False)
sketch12.addGeometry(Part.LineSegment(Vector(-71, 299, 0), Vector(-97, 299, 0)), False)
sketch12.addGeometry(Part.LineSegment(Vector(-97, 299, 0), Vector(-97, 369, 0)), False)
sketch12.addGeometry(Part.LineSegment(Vector(-97, 369, 0), Vector(-71, 369, 0)), False)
sketch12.addGeometry(Part.LineSegment(Vector(-71, 369, 0), Vector(-71, 299, 0)), False)
sketch12.addConstraint(Sketcher.Constraint("Coincident", 0, 2, 1, 1))
sketch12.addConstraint(Sketcher.Constraint("Coincident", 1, 2, 2, 1))
sketch12.addConstraint(Sketcher.Constraint("Coincident", 2, 2, 3, 1))
sketch12.addConstraint(Sketcher.Constraint("Coincident", 3, 2, 0, 1))
sketch12.addConstraint(Sketcher.Constraint("Coincident", 4, 2, 5, 1))
sketch12.addConstraint(Sketcher.Constraint("Coincident", 5, 2, 6, 1))
sketch12.addConstraint(Sketcher.Constraint("Coincident", 6, 2, 7, 1))
sketch12.addConstraint(Sketcher.Constraint("Coincident", 7, 2, 4, 1))
sketch12.addConstraint(Sketcher.Constraint("Vertical", 0))
sketch12.addConstraint(Sketcher.Constraint("Horizontal", 1))
sketch12.addConstraint(Sketcher.Constraint("Vertical", 2))
sketch12.addConstraint(Sketcher.Constraint("Horizontal", 3))
sketch12.addConstraint(Sketcher.Constraint("Horizontal", 4))
sketch12.addConstraint(Sketcher.Constraint("Vertical", 5))
sketch12.addConstraint(Sketcher.Constraint("Horizontal", 6))
sketch12.addConstraint(Sketcher.Constraint("Vertical", 7))
sketch12.addConstraint(Sketcher.Constraint("DistanceX", 4, 2, 4, 1, Q("1 in")))
sketch12.addConstraint(Sketcher.Constraint("DistanceY", 0, 2, 0, 1, Q("3 in")))
sketch12.addConstraint(Sketcher.Constraint("DistanceX", 1, 1, 1, 2, Q("1.25 in")))
sketch12.addConstraint(Sketcher.Constraint("DistanceY", 5, 1, 5, 2, Q("2.75 in")))
sketch12.addConstraint(Sketcher.Constraint("DistanceX", 0, 2, 4, 2, Q("0.125 in")))
sketch12.addConstraint(Sketcher.Constraint("DistanceY", 0, 2, 4, 2, Q("0.125 in")))
sketch12.addConstraint(Sketcher.Constraint("DistanceY", -1, 1, 0, 2, 295.641009))
sketch12.addConstraint(Sketcher.Constraint("DistanceX", 0, 2, -1, 1, 100.027453))
pad9 = body9.newObject("PartDesign::Pad", "Pad008")
pad9.Profile = sketch12
pad9.Length = Q("18 in")

# Sketch on YZ plane
sketch13 = body9.newObject("Sketcher::SketchObject", "Sketch012")
sketch13.AttachmentSupport = (doc.getObject("YZ_Plane008"), [""])
sketch13.MapMode = "FlatFace"
sketch13.AttachmentOffset = App.Placement(Vector(0, 0, -68.277453), App.Rotation())
sketch13.addGeometry(Part.LineSegment(Vector(-381, 296, 0), Vector(-457, 372, 0)), False)
sketch13.addGeometry(Part.LineSegment(Vector(-457, 372, 0), Vector(-457, 296, 0)), False)
sketch13.addGeometry(Part.LineSegment(Vector(-457, 296, 0), Vector(-381, 296, 0)), False)
sketch13.addGeometry(Part.LineSegment(Vector(0, 296, 0), Vector(0, 372, 0)), False)
sketch13.addGeometry(Part.LineSegment(Vector(0, 372, 0), Vector(-76, 296, 0)), False)
sketch13.addGeometry(Part.LineSegment(Vector(-76, 296, 0), Vector(0, 296, 0)), False)
sketch13.addConstraint(Sketcher.Constraint("Coincident", 0, 2, 1, 1))
sketch13.addConstraint(Sketcher.Constraint("Coincident", 1, 2, 2, 1))
sketch13.addConstraint(Sketcher.Constraint("Coincident", 2, 2, 0, 1))
sketch13.addConstraint(Sketcher.Constraint("Coincident", 3, 2, 4, 1))
sketch13.addConstraint(Sketcher.Constraint("Coincident", 4, 2, 5, 1))
sketch13.addConstraint(Sketcher.Constraint("Coincident", 5, 2, 3, 1))
sketch13.addConstraint(Sketcher.Constraint("Vertical", 1))
sketch13.addConstraint(Sketcher.Constraint("Horizontal", 2))
sketch13.addConstraint(Sketcher.Constraint("Vertical", 3))
sketch13.addConstraint(Sketcher.Constraint("Horizontal", 5))
sketch13.addConstraint(Sketcher.Constraint("PointOnObject", 3, 2, -2))
sketch13.addConstraint(Sketcher.Constraint("Perpendicular", 0, 4))
sketch13.addConstraint(Sketcher.Constraint("Horizontal", 0, 2, 3, 2))
sketch13.addConstraint(Sketcher.Constraint("Horizontal", 2, 2, 4, 2))
sketch13.addConstraint(Sketcher.Constraint("Equal", 2, 5))
sketch13.addConstraint(Sketcher.Constraint("DistanceX", 2, 1, 2, 2, Q("3 in")))
sketch13.addConstraint(Sketcher.Constraint("DistanceX", 0, 2, -1, 1, Q("18 in")))
sketch13.addConstraint(Sketcher.Constraint("DistanceY", -1, 1, 0, 2, 371.841009))
pocket4 = body9.newObject("PartDesign::Pocket", "Pocket003")
pocket4.Profile = sketch13
pocket4.Length = Q("1.25 in")
body10 = doc.addObject("PartDesign::Body", "Body009")

# Sketch on XZ plane
sketch14 = body10.newObject("Sketcher::SketchObject", "Sketch013")
sketch14.AttachmentSupport = (doc.getObject("XZ_Plane009"), [""])
sketch14.MapMode = "FlatFace"
sketch14.addGeometry(Part.LineSegment(Vector(-108, 451, 0), Vector(-108, 419, 0)), False)
sketch14.addGeometry(Part.LineSegment(Vector(-108, 419, 0), Vector(-76, 419, 0)), False)
sketch14.addGeometry(Part.LineSegment(Vector(-76, 419, 0), Vector(-76, 451, 0)), False)
sketch14.addGeometry(Part.LineSegment(Vector(-76, 451, 0), Vector(-108, 451, 0)), False)
sketch14.addGeometry(Part.LineSegment(Vector(-80, 423, 0), Vector(-105, 423, 0)), False)
sketch14.addGeometry(Part.LineSegment(Vector(-105, 423, 0), Vector(-105, 448, 0)), False)
sketch14.addGeometry(Part.LineSegment(Vector(-105, 448, 0), Vector(-80, 448, 0)), False)
sketch14.addGeometry(Part.LineSegment(Vector(-80, 448, 0), Vector(-80, 423, 0)), False)
sketch14.addConstraint(Sketcher.Constraint("Coincident", 0, 2, 1, 1))
sketch14.addConstraint(Sketcher.Constraint("Coincident", 1, 2, 2, 1))
sketch14.addConstraint(Sketcher.Constraint("Coincident", 2, 2, 3, 1))
sketch14.addConstraint(Sketcher.Constraint("Coincident", 3, 2, 0, 1))
sketch14.addConstraint(Sketcher.Constraint("Coincident", 4, 2, 5, 1))
sketch14.addConstraint(Sketcher.Constraint("Coincident", 5, 2, 6, 1))
sketch14.addConstraint(Sketcher.Constraint("Coincident", 6, 2, 7, 1))
sketch14.addConstraint(Sketcher.Constraint("Coincident", 7, 2, 4, 1))
sketch14.addConstraint(Sketcher.Constraint("Vertical", 0))
sketch14.addConstraint(Sketcher.Constraint("Horizontal", 1))
sketch14.addConstraint(Sketcher.Constraint("Vertical", 2))
sketch14.addConstraint(Sketcher.Constraint("Horizontal", 3))
sketch14.addConstraint(Sketcher.Constraint("Horizontal", 4))
sketch14.addConstraint(Sketcher.Constraint("Vertical", 5))
sketch14.addConstraint(Sketcher.Constraint("Horizontal", 6))
sketch14.addConstraint(Sketcher.Constraint("Vertical", 7))
sketch14.addConstraint(Sketcher.Constraint("Equal", 3, 0))
sketch14.addConstraint(Sketcher.Constraint("Equal", 6, 5))
sketch14.addConstraint(Sketcher.Constraint("DistanceX", 4, 2, 4, 1, Q("1 in")))
sketch14.addConstraint(Sketcher.Constraint("DistanceX", 1, 1, 1, 2, Q("1.25 in")))
sketch14.addConstraint(Sketcher.Constraint("DistanceX", 0, 2, 4, 2, Q("0.125 in")))
sketch14.addConstraint(Sketcher.Constraint("DistanceY", 0, 2, 4, 2, Q("0.125 in")))
sketch14.addConstraint(Sketcher.Constraint("DistanceY", -1, 1, 0, 2, 419.350058))
sketch14.addConstraint(Sketcher.Constraint("DistanceX", 0, 2, -1, 1, 108.242586))
pad10 = body10.newObject("PartDesign::Pad", "Pad009")
pad10.Profile = sketch14
pad10.Length = Q("48 in")
body11 = doc.addObject("PartDesign::Body", "Body010")

# Sketch on XZ plane
sketch15 = body11.newObject("Sketcher::SketchObject", "Sketch014")
sketch15.AttachmentSupport = (doc.getObject("XZ_Plane010"), [""])
sketch15.MapMode = "FlatFace"
sketch15.addGeometry(Part.Circle(Vector(-65.9, 646.2, 0), Vector(0, 0, 1), 6.3), False)
sketch15.addGeometry(Part.Circle(Vector(-65.9, 646.2, 0), Vector(0, 0, 1), 4.8), False)
sketch15.addConstraint(Sketcher.Constraint("Coincident", 1, 3, 0, 3))
sketch15.addConstraint(Sketcher.Constraint("Diameter", 0, Q("0.5 in")))
sketch15.addConstraint(Sketcher.Constraint("Diameter", 1, Q("0.375 in")))
sketch15.addConstraint(Sketcher.Constraint("DistanceX", 0, 3, -1, 1, 65.874446))
sketch15.addConstraint(Sketcher.Constraint("DistanceY", -1, 1, 0, 3, 646.161556))
pad11 = body11.newObject("PartDesign::Pad", "Pad010")
pad11.Profile = sketch15
pad11.Length = Q("12 in")
body12 = doc.addObject("PartDesign::Body", "Body011")

# Sketch on XZ plane
sketch16 = body12.newObject("Sketcher::SketchObject", "Sketch015")
sketch16.AttachmentSupport = (doc.getObject("XZ_Plane011"), [""])
sketch16.MapMode = "FlatFace"
sketch16.addGeometry(Part.Circle(Vector(-91, 586, 0), Vector(0, 0, 1), 13), False)
sketch16.addGeometry(Part.Circle(Vector(-91, 586, 0), Vector(0, 0, 1), 10), False)
sketch16.addConstraint(Sketcher.Constraint("Coincident", 1, 3, 0, 3))
sketch16.addConstraint(Sketcher.Constraint("Diameter", 0, Q("1.05 in")))
sketch16.addConstraint(Sketcher.Constraint("Diameter", 1, Q("0.824 in")))
sketch16.addConstraint(Sketcher.Constraint("DistanceX", 0, 3, -1, 1, 91.05286))
sketch16.addConstraint(Sketcher.Constraint("DistanceY", -1, 1, 0, 3, 585.70075))
pad12 = body12.newObject("PartDesign::Pad", "Pad011")
pad12.Profile = sketch16
pad12.Length = Q("36 in")

doc.recompute()
